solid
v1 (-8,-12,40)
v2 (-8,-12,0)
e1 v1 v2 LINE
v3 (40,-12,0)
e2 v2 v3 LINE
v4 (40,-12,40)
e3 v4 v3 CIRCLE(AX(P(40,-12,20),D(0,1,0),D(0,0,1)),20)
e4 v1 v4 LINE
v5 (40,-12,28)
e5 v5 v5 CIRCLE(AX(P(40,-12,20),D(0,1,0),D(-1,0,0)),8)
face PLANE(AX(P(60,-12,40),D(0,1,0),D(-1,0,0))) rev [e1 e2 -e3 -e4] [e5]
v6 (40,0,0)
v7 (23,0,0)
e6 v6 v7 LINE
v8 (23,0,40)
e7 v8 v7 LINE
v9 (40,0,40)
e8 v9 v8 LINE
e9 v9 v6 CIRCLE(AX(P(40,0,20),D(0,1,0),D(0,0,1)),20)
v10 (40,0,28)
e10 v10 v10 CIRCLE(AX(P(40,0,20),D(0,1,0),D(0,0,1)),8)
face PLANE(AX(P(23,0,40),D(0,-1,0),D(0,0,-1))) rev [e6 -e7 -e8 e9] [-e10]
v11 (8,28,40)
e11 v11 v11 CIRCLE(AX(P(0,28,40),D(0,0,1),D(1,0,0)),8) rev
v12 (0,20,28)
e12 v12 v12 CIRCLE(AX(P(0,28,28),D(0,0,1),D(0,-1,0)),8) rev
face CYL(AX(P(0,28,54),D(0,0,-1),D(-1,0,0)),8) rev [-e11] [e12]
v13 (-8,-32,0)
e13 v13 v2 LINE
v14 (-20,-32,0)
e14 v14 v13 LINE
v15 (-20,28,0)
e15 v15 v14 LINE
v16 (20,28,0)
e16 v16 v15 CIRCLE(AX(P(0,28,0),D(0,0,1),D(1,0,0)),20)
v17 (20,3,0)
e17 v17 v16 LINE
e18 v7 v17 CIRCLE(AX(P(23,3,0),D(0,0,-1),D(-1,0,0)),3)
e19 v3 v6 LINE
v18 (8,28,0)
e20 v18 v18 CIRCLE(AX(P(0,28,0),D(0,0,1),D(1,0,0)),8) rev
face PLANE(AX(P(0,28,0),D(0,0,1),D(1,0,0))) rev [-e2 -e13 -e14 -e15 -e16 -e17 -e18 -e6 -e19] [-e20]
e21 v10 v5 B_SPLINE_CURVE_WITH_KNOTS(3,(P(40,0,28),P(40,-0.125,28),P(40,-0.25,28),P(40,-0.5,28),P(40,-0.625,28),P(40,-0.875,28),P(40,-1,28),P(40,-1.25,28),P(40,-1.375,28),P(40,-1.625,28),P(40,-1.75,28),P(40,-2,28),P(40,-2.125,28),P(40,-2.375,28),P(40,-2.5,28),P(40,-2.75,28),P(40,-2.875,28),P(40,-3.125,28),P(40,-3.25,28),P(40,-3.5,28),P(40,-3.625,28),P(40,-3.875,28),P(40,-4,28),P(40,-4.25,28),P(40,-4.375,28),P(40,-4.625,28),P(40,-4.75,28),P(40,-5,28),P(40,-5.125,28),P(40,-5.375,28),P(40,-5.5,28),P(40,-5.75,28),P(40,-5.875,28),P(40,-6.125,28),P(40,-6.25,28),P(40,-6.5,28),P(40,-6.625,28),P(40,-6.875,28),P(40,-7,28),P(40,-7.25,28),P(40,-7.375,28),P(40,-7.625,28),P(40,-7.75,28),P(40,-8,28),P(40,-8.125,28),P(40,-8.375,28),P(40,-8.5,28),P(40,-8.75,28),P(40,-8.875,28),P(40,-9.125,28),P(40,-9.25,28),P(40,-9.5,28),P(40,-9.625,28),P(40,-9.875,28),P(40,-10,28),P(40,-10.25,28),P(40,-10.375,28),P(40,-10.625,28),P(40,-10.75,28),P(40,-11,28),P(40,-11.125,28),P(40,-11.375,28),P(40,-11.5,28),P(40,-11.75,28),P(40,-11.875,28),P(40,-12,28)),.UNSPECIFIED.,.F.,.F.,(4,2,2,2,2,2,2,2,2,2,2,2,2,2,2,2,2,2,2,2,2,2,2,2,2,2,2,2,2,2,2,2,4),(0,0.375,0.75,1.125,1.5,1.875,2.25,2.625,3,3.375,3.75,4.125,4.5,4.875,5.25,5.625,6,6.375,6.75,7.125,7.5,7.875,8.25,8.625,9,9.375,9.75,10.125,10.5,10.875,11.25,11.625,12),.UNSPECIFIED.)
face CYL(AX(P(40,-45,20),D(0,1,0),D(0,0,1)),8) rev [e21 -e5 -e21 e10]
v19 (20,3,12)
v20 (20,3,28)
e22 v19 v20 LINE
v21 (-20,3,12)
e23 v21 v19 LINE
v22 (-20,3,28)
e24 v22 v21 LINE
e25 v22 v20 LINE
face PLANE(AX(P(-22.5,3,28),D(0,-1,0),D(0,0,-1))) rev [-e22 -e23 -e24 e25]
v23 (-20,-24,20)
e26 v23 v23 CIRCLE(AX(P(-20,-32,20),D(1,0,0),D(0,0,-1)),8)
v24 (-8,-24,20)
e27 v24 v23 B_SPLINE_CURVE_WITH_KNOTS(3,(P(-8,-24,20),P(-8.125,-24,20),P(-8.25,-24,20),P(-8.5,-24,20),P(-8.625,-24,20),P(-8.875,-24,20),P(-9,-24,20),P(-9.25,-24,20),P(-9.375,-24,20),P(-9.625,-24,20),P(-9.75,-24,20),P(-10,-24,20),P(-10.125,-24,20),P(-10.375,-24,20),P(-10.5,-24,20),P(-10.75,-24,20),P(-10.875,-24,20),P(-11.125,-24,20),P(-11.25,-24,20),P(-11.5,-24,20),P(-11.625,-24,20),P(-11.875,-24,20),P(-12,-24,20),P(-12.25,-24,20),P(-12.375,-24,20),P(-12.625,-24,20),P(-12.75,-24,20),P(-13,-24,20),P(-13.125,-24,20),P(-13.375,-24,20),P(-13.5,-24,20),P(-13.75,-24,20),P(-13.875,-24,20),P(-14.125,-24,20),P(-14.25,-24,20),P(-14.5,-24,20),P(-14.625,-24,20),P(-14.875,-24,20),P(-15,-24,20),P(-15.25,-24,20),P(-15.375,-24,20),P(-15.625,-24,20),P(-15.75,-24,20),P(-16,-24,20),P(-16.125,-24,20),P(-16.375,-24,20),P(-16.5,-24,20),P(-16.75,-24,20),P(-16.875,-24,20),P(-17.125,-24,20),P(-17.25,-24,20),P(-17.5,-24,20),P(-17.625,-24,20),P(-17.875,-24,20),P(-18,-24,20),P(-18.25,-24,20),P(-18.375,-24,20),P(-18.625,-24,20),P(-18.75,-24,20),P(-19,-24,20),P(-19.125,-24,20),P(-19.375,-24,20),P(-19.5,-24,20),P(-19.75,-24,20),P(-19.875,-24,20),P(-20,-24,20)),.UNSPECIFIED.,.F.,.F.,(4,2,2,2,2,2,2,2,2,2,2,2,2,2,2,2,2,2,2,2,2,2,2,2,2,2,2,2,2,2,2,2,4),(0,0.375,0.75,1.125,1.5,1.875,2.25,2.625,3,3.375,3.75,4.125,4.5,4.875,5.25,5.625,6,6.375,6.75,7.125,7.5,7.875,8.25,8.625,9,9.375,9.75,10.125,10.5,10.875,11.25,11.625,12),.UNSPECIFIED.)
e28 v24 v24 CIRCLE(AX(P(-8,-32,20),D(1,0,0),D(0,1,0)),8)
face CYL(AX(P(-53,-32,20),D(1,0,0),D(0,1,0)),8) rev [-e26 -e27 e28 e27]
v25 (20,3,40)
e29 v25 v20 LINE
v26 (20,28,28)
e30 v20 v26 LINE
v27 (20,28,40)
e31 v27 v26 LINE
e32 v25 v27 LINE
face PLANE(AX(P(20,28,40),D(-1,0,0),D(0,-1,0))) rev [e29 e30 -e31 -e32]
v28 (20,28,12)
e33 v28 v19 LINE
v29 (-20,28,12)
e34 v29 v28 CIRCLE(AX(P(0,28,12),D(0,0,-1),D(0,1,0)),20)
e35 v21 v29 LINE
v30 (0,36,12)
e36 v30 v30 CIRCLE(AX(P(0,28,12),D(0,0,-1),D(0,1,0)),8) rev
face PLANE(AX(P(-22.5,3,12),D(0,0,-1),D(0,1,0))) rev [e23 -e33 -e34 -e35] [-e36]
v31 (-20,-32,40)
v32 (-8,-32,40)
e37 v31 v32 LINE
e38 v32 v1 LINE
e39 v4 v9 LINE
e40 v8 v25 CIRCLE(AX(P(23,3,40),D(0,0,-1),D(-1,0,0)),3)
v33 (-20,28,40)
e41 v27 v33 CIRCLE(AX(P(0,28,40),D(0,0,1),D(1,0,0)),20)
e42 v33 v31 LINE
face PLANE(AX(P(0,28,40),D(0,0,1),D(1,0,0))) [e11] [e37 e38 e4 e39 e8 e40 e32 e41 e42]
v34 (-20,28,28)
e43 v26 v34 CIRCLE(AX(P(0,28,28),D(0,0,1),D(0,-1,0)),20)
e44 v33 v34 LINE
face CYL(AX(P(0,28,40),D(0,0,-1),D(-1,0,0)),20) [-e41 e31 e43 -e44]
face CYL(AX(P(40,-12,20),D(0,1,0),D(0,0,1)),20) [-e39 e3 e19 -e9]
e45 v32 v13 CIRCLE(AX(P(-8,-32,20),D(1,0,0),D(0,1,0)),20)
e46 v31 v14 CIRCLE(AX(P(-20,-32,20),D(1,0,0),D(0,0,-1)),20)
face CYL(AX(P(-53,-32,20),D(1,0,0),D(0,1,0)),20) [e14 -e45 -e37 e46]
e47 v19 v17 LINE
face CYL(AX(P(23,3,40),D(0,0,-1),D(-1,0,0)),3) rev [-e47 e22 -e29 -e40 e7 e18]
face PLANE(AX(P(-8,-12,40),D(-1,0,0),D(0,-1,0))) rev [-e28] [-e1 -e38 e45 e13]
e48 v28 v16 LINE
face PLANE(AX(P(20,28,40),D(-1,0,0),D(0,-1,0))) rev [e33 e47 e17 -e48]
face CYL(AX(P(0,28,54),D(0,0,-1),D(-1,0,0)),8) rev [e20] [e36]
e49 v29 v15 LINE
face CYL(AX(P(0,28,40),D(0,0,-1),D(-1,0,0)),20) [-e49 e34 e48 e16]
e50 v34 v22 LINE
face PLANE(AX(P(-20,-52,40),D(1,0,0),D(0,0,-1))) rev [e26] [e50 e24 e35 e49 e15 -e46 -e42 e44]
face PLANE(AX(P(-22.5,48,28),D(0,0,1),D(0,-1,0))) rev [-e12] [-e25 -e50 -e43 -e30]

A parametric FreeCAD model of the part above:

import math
import FreeCAD as App
import Part
import Sketcher
Q = App.Units.Quantity


def add_polygon(sketch, points):
    """Adds a closed chain of lines whose ends are joined by coincident constraints."""
    first, n = sketch.GeometryCount, len(points)
    for a, b in zip(points, points[1:] + points[:1]):
        sketch.addGeometry(Part.LineSegment(App.Vector(*a, 0), App.Vector(*b, 0)), False)
    for i in range(n):
        sketch.addConstraint(Sketcher.Constraint("Coincident", first + i, 2, first + (i + 1) % n, 1))

doc = App.newDocument("Part")
body = doc.addObject("PartDesign::Body", "Body")

sketch1 = body.newObject("Sketcher::SketchObject", "Sketch")
sketch1.AttachmentSupport = (doc.getObject("XY_Plane"), [""])
sketch1.MapMode = "FlatFace"
sketch1.addGeometry([
    Part.LineSegment(App.Vector(60, 0, 0), App.Vector(23, 0, 0)),
    Part.ArcOfCircle(Part.Circle(App.Vector(23, 3, 0), App.Vector(0, 0, 1), 3), math.radians(180), math.radians(270)),
    Part.LineSegment(App.Vector(20, 3, 0), App.Vector(20, 28, 0)),
    Part.ArcOfCircle(Part.Circle(App.Vector(0, 28, 0), App.Vector(0, 0, 1), 20), math.radians(0), math.radians(180)),
    Part.LineSegment(App.Vector(-20, 28, 0), App.Vector(-20, -52, 0)),
    Part.LineSegment(App.Vector(-20, -52, 0), App.Vector(-8, -52, 0)),
    Part.LineSegment(App.Vector(-8, -52, 0), App.Vector(-8, -12, 0)),
    Part.LineSegment(App.Vector(-8, -12, 0), App.Vector(60, -12, 0)),
    Part.LineSegment(App.Vector(60, -12, 0), App.Vector(60, 0, 0)),
], False)
sketch1.addConstraint([
    Sketcher.Constraint("Tangent", 0, 2, 1, 2),
    Sketcher.Constraint("Tangent", 1, 1, 2, 1),
    Sketcher.Constraint("Tangent", 2, 2, 3, 1),
    Sketcher.Constraint("Tangent", 3, 2, 4, 1),
    Sketcher.Constraint("Coincident", 4, 2, 5, 1),
    Sketcher.Constraint("Coincident", 5, 2, 6, 1),
    Sketcher.Constraint("Coincident", 6, 2, 7, 1),
    Sketcher.Constraint("Coincident", 7, 2, 8, 1),
    Sketcher.Constraint("Coincident", 8, 2, 0, 1),
    Sketcher.Constraint("Horizontal", 0),
    Sketcher.Constraint("Vertical", 2),
    Sketcher.Constraint("Vertical", 4),
    Sketcher.Constraint("Horizontal", 5),
    Sketcher.Constraint("Vertical", 6),
    Sketcher.Constraint("Horizontal", 7),
    Sketcher.Constraint("Vertical", 8),
    Sketcher.Constraint("PointOnObject", 3, 3, -2),
    Sketcher.Constraint("PointOnObject", 0, 2, -1),
    Sketcher.Constraint("Equal", 5, 8),
    Sketcher.Constraint("Radius", 1, Q("3 mm")),
    Sketcher.Constraint("Radius", 3, Q("20 mm")),
    Sketcher.Constraint("DistanceX", 0, 2, 0, 1, Q("37 mm")),
    Sketcher.Constraint("DistanceX", 5, 1, 5, 2, Q("12 mm")),
    Sketcher.Constraint("DistanceY", 2, 1, 2, 2, Q("25 mm")),
    Sketcher.Constraint("DistanceY", 4, 2, 4, 1, Q("80 mm")),
])
pad1 = body.newObject("PartDesign::Pad", "Pad")
pad1.Profile = sketch1
pad1.Length = 40

sketch2 = body.newObject("Sketcher::SketchObject", "Sketch001")
sketch2.AttachmentSupport = (doc.getObject("XZ_Plane"), [""])
sketch2.MapMode = "FlatFace"
sketch2.addGeometry([
    Part.LineSegment(App.Vector(60, 40, 0), App.Vector(60, 20, 0)),
    Part.ArcOfCircle(Part.Circle(App.Vector(40, 20, 0), App.Vector(0, 0, 1), 20), math.radians(0), math.radians(90)),
    Part.LineSegment(App.Vector(40, 40, 0), App.Vector(60, 40, 0)),
    Part.LineSegment(App.Vector(60, 20, 0), App.Vector(60, 0, 0)),
    Part.LineSegment(App.Vector(60, 0, 0), App.Vector(40, 0, 0)),
    Part.ArcOfCircle(Part.Circle(App.Vector(40, 20, 0), App.Vector(0, 0, 1), 20), math.radians(-90), math.radians(0)),
], False)
sketch2.addConstraint([
    Sketcher.Constraint("Tangent", 0, 2, 1, 1),
    Sketcher.Constraint("Tangent", 1, 2, 2, 1),
    Sketcher.Constraint("Coincident", 2, 2, 0, 1),
    Sketcher.Constraint("Coincident", 3, 2, 4, 1),
    Sketcher.Constraint("Tangent", 4, 2, 5, 1),
    Sketcher.Constraint("Tangent", 5, 2, 3, 1),
    Sketcher.Constraint("Vertical", 0),
    Sketcher.Constraint("Horizontal", 2),
    Sketcher.Constraint("Vertical", 3),
    Sketcher.Constraint("Horizontal", 4),
    Sketcher.Constraint("Coincident", 5, 3, 1, 3),
    Sketcher.Constraint("Equal", 1, 5),
    Sketcher.Constraint("PointOnObject", 3, 2, -1),
    Sketcher.Constraint("Radius", 1, Q("20 mm")),
    Sketcher.Constraint("DistanceX", -1, 1, 1, 3, Q("40 mm")),
])
pocket1 = body.newObject("PartDesign::Pocket", "Pocket")
pocket1.Profile = sketch2
pocket1.Length = 12
pocket1.Reversed = True

sketch3 = body.newObject("Sketcher::SketchObject", "Sketch002")
sketch3.AttachmentSupport = (doc.getObject("YZ_Plane"), [""])
sketch3.MapMode = "FlatFace"
add_polygon(sketch3, [(48, 28), (3, 28), (3, 12), (48, 12)])
sketch3.addConstraint([
    Sketcher.Constraint("Horizontal", 0),
    Sketcher.Constraint("Vertical", 1),
    Sketcher.Constraint("Horizontal", 2),
    Sketcher.Constraint("Vertical", 3),
    Sketcher.Constraint("DistanceX", 0, 2, 0, 1, Q("45 mm")),
    Sketcher.Constraint("DistanceY", 1, 2, 1, 1, Q("16 mm")),
    Sketcher.Constraint("DistanceX", -1, 1, 0, 2, Q("3 mm")),
    Sketcher.Constraint("DistanceY", -1, 1, 0, 2, Q("28 mm")),
])
pocket2 = body.newObject("PartDesign::Pocket", "Pocket001")
pocket2.Profile = sketch3
pocket2.Length = 45
pocket2.Midplane = True

sketch4 = body.newObject("Sketcher::SketchObject", "Sketch003")
sketch4.AttachmentSupport = (doc.getObject("YZ_Plane"), [""])
sketch4.MapMode = "FlatFace"
sketch4.AttachmentOffset = App.Placement(App.Vector(0, 0, -8), App.Rotation())
sketch4.addGeometry([
    Part.ArcOfCircle(Part.Circle(App.Vector(-32, 20, 0), App.Vector(0, 0, 1), 8), math.radians(0), math.radians(180)),
    Part.ArcOfCircle(Part.Circle(App.Vector(-32, 20, 0), App.Vector(0, 0, 1), 8), math.radians(-180), math.radians(-90)),
    Part.ArcOfCircle(Part.Circle(App.Vector(-32, 20, 0), App.Vector(0, 0, 1), 8), math.radians(-90), math.radians(0)),
    Part.LineSegment(App.Vector(-52, 40, 0), App.Vector(-52, 20, 0)),
    Part.ArcOfCircle(Part.Circle(App.Vector(-32, 20, 0), App.Vector(0, 0, 1), 20), math.radians(90), math.radians(180)),
    Part.LineSegment(App.Vector(-32, 40, 0), App.Vector(-52, 40, 0)),
    Part.ArcOfCircle(Part.Circle(App.Vector(-32, 20, 0), App.Vector(0, 0, 1), 20), math.radians(180), math.radians(270)),
    Part.LineSegment(App.Vector(-52, 20, 0), App.Vector(-52, 0, 0)),
    Part.LineSegment(App.Vector(-52, 0, 0), App.Vector(-32, 0, 0)),
], False)
sketch4.addConstraint([
    Sketcher.Constraint("Tangent", 0, 2, 1, 1),
    Sketcher.Constraint("Tangent", 1, 2, 2, 1),
    Sketcher.Constraint("Tangent", 2, 2, 0, 1),
    Sketcher.Constraint("Tangent", 3, 2, 4, 2),
    Sketcher.Constraint("Tangent", 4, 1, 5, 1),
    Sketcher.Constraint("Coincident", 5, 2, 3, 1),
    Sketcher.Constraint("Tangent", 6, 1, 7, 1),
    Sketcher.Constraint("Coincident", 7, 2, 8, 1),
    Sketcher.Constraint("Tangent", 8, 2, 6, 2),
    Sketcher.Constraint("Vertical", 3),
    Sketcher.Constraint("Horizontal", 5),
    Sketcher.Constraint("Vertical", 7),
    Sketcher.Constraint("Horizontal", 8),
    Sketcher.Constraint("Coincident", 4, 3, 0, 3),
    Sketcher.Constraint("Coincident", 6, 3, 0, 3),
    Sketcher.Constraint("Equal", 4, 6),
    Sketcher.Constraint("PointOnObject", 7, 2, -1),
    Sketcher.Constraint("Horizontal", 6, 3, 0, 2),
    Sketcher.Constraint("Horizontal", 0, 2, 2, 2),
    Sketcher.Constraint("Vertical", 6, 3, 1, 2),
    Sketcher.Constraint("Radius", 0, Q("8 mm")),
    Sketcher.Constraint("Radius", 4, Q("20 mm")),
    Sketcher.Constraint("DistanceX", 0, 3, -1, 1, Q("32 mm")),
])
pocket3 = body.newObject("PartDesign::Pocket", "Pocket002")
pocket3.Profile = sketch4
pocket3.Length = 45

sketch5 = body.newObject("Sketcher::SketchObject", "Sketch004")
sketch5.AttachmentSupport = (doc.getObject("XZ_Plane"), [""])
sketch5.MapMode = "FlatFace"
sketch5.addGeometry(Part.Circle(App.Vector(40, 20, 0), App.Vector(0, 0, 1), 8), False)
sketch5.addConstraint([
    Sketcher.Constraint("Diameter", 0, Q("16 mm")),
    Sketcher.Constraint("DistanceX", -1, 1, 0, 3, Q("40 mm")),
    Sketcher.Constraint("DistanceY", -1, 1, 0, 3, Q("20 mm")),
])
pocket4 = body.newObject("PartDesign::Pocket", "Pocket003")
pocket4.Profile = sketch5
pocket4.Length = 45
pocket4.Reversed = True

sketch6 = body.newObject("Sketcher::SketchObject", "Sketch005")
sketch6.AttachmentSupport = (doc.getObject("XY_Plane"), [""])
sketch6.MapMode = "FlatFace"
sketch6.addGeometry(Part.Circle(App.Vector(0, 28, 0), App.Vector(0, 0, 1), 8), False)
sketch6.addConstraint([
    Sketcher.Constraint("PointOnObject", 0, 3, -2),
    Sketcher.Constraint("Diameter", 0, Q("16 mm")),
    Sketcher.Constraint("DistanceY", -1, 1, 0, 3, Q("28 mm")),
])
pocket5 = body.newObject("PartDesign::Pocket", "Pocket004")
pocket5.Profile = sketch6
pocket5.Type = "ThroughAll"
pocket5.Midplane = True

doc.recompute()
